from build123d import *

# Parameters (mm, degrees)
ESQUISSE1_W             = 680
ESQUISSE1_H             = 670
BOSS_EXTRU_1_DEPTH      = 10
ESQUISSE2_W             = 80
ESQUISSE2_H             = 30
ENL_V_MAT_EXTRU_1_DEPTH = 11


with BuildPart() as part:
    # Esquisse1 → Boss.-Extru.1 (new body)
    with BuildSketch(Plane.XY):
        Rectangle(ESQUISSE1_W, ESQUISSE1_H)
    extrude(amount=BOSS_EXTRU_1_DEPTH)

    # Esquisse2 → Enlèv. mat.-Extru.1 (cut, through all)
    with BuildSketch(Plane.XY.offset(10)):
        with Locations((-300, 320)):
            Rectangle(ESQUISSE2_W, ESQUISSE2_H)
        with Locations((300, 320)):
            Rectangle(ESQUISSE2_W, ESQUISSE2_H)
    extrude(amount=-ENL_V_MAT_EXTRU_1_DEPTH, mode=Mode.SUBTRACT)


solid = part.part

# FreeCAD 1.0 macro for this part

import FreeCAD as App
import Part
import Sketcher
from FreeCAD import Vector

doc = App.newDocument("Part")
body = doc.addObject("PartDesign::Body", "Body")

sketch1 = doc.addObject("Sketcher::SketchObject", "Sketch")
body.addObject(sketch1)
sketch1.AttachmentSupport = (doc.XY_Plane, [""])
sketch1.MapMode = "FlatFace"
sketch1.addGeometry([
    Part.LineSegment(Vector(-340, 335, 0), Vector(-340, -335, 0)),
    Part.LineSegment(Vector(-340, -335, 0), Vector(340, -335, 0)),
    Part.LineSegment(Vector(340, -335, 0), Vector(340, 335, 0)),
    Part.LineSegment(Vector(340, 335, 0), Vector(-340, 335, 0)),
], False)
sketch1.addConstraint([
    Sketcher.Constraint("Coincident", 0, 2, 1, 1),
    Sketcher.Constraint("Coincident", 1, 2, 2, 1),
    Sketcher.Constraint("Coincident", 2, 2, 3, 1),
    Sketcher.Constraint("Coincident", 3, 2, 0, 1),
    Sketcher.Constraint("Vertical", 0),
    Sketcher.Constraint("Horizontal", 1),
    Sketcher.Constraint("Vertical", 2),
    Sketcher.Constraint("Horizontal", 3),
    Sketcher.Constraint("Symmetric", 0, 2, 2, 2, -1, 1),
    Sketcher.Constraint("DistanceX", 1, 1, 1, 2, 680.0),
    Sketcher.Constraint("DistanceY", 0, 2, 0, 1, 670.0),
])
pad1 = doc.addObject("PartDesign::Pad", "Pad")
body.addObject(pad1)
pad1.Profile = sketch1
pad1.Length = 10

sketch2 = doc.addObject("Sketcher::SketchObject", "Sketch001")
body.addObject(sketch2)
sketch2.AttachmentSupport = (doc.XY_Plane, [""])
sketch2.MapMode = "FlatFace"
sketch2.AttachmentOffset = App.Placement(Vector(0, 0, 10), App.Rotation())
sketch2.addGeometry([
    Part.LineSegment(Vector(-340, 335, 0), Vector(-340, 305, 0)),
    Part.LineSegment(Vector(-340, 305, 0), Vector(-260, 305, 0)),
    Part.LineSegment(Vector(-260, 305, 0), Vector(-260, 335, 0)),
    Part.LineSegment(Vector(-260, 335, 0), Vector(-340, 335, 0)),
    Part.LineSegment(Vector(260, 335, 0), Vector(260, 305, 0)),
    Part.LineSegment(Vector(260, 305, 0), Vector(340, 305, 0)),
    Part.LineSegment(Vector(340, 305, 0), Vector(340, 335, 0)),
    Part.LineSegment(Vector(340, 335, 0), Vector(260, 335, 0)),
], False)
sketch2.addConstraint([
    Sketcher.Constraint("Coincident", 0, 2, 1, 1),
    Sketcher.Constraint("Coincident", 1, 2, 2, 1),
    Sketcher.Constraint("Coincident", 2, 2, 3, 1),
    Sketcher.Constraint("Coincident", 3, 2, 0, 1),
    Sketcher.Constraint("Coincident", 4, 2, 5, 1),
    Sketcher.Constraint("Coincident", 5, 2, 6, 1),
    Sketcher.Constraint("Coincident", 6, 2, 7, 1),
    Sketcher.Constraint("Coincident", 7, 2, 4, 1),
    Sketcher.Constraint("Vertical", 0),
    Sketcher.Constraint("Horizontal", 1),
    Sketcher.Constraint("Vertical", 2),
    Sketcher.Constraint("Horizontal", 3),
    Sketcher.Constraint("Vertical", 4),
    Sketcher.Constraint("Horizontal", 5),
    Sketcher.Constraint("Vertical", 6),
    Sketcher.Constraint("Horizontal", 7),
    Sketcher.Constraint("Symmetric", 1, 2, 4, 2, -2),
    Sketcher.Constraint("Symmetric", 3, 2, 6, 2, -2),
    Sketcher.Constraint("DistanceX", 1, 1, 1, 2, 80.0),
    Sketcher.Constraint("DistanceY", 0, 2, 0, 1, 30.0),
    Sketcher.Constraint("DistanceX", 0, 2, -1, 1, 340.0),
    Sketcher.Constraint("DistanceY", -1, 1, 0, 2, 305.0),
])
pocket1 = doc.addObject("PartDesign::Pocket", "Pocket")
body.addObject(pocket1)
pocket1.Profile = sketch2
pocket1.Type = "ThroughAll"

doc.recompute()
